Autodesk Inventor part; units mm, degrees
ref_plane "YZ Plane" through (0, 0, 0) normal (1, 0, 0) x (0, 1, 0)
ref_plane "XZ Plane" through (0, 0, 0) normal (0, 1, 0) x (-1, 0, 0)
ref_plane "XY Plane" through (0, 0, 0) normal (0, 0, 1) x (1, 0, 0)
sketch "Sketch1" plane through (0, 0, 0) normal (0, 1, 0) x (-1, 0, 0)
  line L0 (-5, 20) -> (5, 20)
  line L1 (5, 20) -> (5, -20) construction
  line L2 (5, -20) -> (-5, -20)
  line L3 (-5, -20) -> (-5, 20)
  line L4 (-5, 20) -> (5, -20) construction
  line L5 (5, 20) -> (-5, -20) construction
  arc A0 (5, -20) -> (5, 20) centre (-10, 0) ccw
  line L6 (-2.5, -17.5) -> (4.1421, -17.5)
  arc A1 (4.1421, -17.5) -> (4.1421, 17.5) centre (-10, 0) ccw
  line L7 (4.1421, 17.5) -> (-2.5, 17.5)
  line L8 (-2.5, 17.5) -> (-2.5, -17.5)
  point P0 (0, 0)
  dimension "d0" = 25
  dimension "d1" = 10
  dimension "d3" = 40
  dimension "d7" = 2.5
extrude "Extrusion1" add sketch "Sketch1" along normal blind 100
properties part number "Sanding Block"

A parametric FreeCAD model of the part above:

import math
import FreeCAD as App
import Part
import Sketcher

doc = App.newDocument("Part")
body = doc.addObject("PartDesign::Body", "Body")

sketch1 = body.newObject("Sketcher::SketchObject", "Sketch")
sketch1.AttachmentSupport = (doc.getObject("XZ_Plane"), [""])
sketch1.MapMode = "FlatFace"
sketch1.addGeometry(Part.LineSegment(App.Vector(-5, 20, 0), App.Vector(5, 20, 0)), False)
sketch1.addGeometry(Part.LineSegment(App.Vector(5, 20, 0), App.Vector(5, -20, 0)), False)
sketch1.addGeometry(Part.LineSegment(App.Vector(5, -20, 0), App.Vector(-5, -20, 0)), False)
sketch1.addGeometry(Part.ArcOfCircle(Part.Circle(App.Vector(10, 0, 0), App.Vector(0, 0, 1), 25), math.radians(127), math.radians(233)), False)
sketch1.addGeometry(Part.LineSegment(App.Vector(-4, -18, 0), App.Vector(2, -18, 0)), False)
sketch1.addGeometry(Part.LineSegment(App.Vector(2, -18, 0), App.Vector(2, 18, 0)), False)
sketch1.addGeometry(Part.LineSegment(App.Vector(2, 18, 0), App.Vector(-4, 18, 0)), False)
sketch1.addGeometry(Part.ArcOfCircle(Part.Circle(App.Vector(10, 0, 0), App.Vector(0, 0, 1), 22), math.radians(129), math.radians(231)), False)
sketch1.addConstraint(Sketcher.Constraint("Coincident", 0, 2, 1, 1))
sketch1.addConstraint(Sketcher.Constraint("Coincident", 1, 2, 2, 1))
sketch1.addConstraint(Sketcher.Constraint("Coincident", 2, 2, 3, 2))
sketch1.addConstraint(Sketcher.Constraint("Coincident", 3, 1, 0, 1))
sketch1.addConstraint(Sketcher.Constraint("Coincident", 4, 2, 5, 1))
sketch1.addConstraint(Sketcher.Constraint("Coincident", 5, 2, 6, 1))
sketch1.addConstraint(Sketcher.Constraint("Coincident", 6, 2, 7, 1))
sketch1.addConstraint(Sketcher.Constraint("Coincident", 7, 2, 4, 1))
sketch1.addConstraint(Sketcher.Constraint("Horizontal", 0))
sketch1.addConstraint(Sketcher.Constraint("Vertical", 1))
sketch1.addConstraint(Sketcher.Constraint("Horizontal", 2))
sketch1.addConstraint(Sketcher.Constraint("Horizontal", 4))
sketch1.addConstraint(Sketcher.Constraint("Vertical", 5))
sketch1.addConstraint(Sketcher.Constraint("Horizontal", 6))
sketch1.addConstraint(Sketcher.Constraint("Coincident", 7, 3, 3, 3))
sketch1.addConstraint(Sketcher.Constraint("Symmetric", 0, 2, 2, 2, -1, 1))
sketch1.addConstraint(Sketcher.Constraint("Symmetric", 6, 2, 7, 2, -1))
sketch1.addConstraint(Sketcher.Constraint("Radius", 3, 25.0))
sketch1.addConstraint(Sketcher.Constraint("DistanceX", 0, 1, 0, 2, 10.0))
sketch1.addConstraint(Sketcher.Constraint("DistanceY", 1, 2, 1, 1, 40.0))
sketch1.addConstraint(Sketcher.Constraint("DistanceX", -1, 1, 4, 2, 2.5))
sketch1.addConstraint(Sketcher.Constraint("Radius", 7, 22.5))
sketch1.addConstraint(Sketcher.Constraint("DistanceY", 1, 2, 4, 2, 2.5))
pad1 = body.newObject("PartDesign::Pad", "Pad")
pad1.Profile = sketch1
pad1.Length = 100
pad1.Reversed = True

doc.recompute()
